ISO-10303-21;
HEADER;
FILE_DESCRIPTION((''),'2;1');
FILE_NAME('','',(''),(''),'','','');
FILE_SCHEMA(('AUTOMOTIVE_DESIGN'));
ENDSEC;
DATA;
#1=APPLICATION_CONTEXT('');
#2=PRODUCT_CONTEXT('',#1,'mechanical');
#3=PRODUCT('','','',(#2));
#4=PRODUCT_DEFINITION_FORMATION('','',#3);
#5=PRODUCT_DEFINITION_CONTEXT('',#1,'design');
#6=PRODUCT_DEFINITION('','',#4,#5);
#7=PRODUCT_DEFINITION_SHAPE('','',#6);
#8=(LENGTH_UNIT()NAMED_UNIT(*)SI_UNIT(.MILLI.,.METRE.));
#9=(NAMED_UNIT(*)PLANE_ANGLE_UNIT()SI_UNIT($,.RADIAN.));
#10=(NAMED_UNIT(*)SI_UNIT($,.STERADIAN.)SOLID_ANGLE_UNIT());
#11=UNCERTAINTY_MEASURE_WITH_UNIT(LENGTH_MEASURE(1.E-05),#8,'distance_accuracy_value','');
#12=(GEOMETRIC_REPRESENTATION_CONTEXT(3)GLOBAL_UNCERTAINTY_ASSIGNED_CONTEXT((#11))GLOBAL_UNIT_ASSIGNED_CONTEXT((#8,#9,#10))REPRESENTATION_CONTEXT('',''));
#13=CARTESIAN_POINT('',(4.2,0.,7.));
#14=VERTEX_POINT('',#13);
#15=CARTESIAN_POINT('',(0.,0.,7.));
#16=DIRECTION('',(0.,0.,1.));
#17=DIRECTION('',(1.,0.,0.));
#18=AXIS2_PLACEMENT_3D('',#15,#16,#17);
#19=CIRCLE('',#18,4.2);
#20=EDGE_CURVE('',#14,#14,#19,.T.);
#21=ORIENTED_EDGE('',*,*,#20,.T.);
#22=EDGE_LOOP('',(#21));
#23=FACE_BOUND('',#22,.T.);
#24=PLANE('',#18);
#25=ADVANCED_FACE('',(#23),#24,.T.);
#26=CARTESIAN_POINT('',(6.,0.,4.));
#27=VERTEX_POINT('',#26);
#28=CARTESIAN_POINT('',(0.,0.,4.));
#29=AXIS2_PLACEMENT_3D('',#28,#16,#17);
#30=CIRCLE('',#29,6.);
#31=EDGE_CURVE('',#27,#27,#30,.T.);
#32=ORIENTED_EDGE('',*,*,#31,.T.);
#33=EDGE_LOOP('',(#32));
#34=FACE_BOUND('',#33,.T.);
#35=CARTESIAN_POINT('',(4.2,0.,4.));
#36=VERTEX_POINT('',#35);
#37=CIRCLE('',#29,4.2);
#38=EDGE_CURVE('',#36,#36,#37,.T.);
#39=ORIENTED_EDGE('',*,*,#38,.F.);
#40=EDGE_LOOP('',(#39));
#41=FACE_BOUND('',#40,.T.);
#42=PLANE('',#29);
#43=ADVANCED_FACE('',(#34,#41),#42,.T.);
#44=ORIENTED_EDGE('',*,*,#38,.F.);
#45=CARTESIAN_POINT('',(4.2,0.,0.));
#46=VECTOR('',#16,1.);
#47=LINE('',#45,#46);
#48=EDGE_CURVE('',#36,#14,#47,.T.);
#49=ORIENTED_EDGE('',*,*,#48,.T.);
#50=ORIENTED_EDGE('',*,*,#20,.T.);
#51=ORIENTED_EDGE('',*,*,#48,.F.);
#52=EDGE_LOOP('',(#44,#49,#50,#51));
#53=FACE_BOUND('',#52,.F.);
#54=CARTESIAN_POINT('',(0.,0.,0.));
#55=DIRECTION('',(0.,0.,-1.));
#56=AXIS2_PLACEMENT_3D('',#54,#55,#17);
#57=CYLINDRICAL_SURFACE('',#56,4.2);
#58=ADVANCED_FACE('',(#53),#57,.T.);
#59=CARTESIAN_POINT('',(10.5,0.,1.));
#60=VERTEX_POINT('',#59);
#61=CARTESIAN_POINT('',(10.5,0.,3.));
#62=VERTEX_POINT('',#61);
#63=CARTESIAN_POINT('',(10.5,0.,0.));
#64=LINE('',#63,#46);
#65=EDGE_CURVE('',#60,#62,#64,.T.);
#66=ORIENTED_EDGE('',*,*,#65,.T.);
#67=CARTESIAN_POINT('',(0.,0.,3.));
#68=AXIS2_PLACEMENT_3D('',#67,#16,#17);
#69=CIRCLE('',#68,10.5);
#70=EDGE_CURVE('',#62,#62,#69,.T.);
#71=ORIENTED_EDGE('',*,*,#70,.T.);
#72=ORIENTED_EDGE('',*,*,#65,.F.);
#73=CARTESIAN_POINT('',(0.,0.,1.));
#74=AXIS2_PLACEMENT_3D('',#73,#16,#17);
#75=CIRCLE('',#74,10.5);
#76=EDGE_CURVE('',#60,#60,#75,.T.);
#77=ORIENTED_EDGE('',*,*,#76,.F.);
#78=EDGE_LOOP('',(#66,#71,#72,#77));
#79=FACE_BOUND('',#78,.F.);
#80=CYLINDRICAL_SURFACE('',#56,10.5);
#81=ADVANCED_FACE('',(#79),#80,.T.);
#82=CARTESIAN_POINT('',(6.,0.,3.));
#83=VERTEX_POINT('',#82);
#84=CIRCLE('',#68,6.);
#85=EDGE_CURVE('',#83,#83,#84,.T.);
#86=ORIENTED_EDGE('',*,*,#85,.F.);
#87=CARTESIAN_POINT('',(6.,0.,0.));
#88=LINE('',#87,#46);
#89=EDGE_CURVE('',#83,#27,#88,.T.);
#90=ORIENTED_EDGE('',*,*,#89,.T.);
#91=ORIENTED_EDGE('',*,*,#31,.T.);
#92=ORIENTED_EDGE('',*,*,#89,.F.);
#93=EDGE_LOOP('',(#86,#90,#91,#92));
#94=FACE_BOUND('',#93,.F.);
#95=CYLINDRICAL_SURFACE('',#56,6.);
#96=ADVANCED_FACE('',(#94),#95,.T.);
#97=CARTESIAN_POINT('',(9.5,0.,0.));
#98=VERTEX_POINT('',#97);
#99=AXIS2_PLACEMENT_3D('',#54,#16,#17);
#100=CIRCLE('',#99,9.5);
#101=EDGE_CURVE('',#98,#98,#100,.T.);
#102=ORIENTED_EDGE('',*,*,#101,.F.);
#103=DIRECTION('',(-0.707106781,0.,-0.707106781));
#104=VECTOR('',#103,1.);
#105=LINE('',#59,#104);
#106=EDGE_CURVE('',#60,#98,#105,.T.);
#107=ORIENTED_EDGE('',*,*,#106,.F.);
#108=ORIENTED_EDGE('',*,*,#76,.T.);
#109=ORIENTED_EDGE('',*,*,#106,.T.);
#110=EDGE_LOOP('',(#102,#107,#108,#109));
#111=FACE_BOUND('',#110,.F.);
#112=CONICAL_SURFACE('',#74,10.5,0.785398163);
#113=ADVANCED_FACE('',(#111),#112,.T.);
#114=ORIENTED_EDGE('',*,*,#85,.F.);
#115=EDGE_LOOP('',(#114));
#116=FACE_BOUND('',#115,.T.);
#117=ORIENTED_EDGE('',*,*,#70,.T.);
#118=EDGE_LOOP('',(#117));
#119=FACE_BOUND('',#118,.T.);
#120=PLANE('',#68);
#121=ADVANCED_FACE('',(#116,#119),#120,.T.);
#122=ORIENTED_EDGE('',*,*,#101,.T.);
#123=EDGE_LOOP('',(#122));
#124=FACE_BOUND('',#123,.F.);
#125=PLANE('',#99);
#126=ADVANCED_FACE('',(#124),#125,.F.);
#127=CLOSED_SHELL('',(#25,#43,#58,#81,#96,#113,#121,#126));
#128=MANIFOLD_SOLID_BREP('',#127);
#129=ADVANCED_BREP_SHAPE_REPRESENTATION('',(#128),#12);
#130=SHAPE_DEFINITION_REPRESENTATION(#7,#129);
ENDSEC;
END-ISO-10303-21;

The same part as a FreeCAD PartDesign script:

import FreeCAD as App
import Part
import Sketcher
Q = App.Units.Quantity


def edges_at(feature, points):
    """Names of the edges that pass closest to the given points."""
    edges = feature.Shape.Edges
    near = lambda p: min(range(len(edges)), key=lambda i: edges[i].distToShape(Part.Vertex(*p))[0])
    return sorted({f"Edge{near(p) + 1}" for p in points})

doc = App.newDocument("Part")
body = doc.addObject("PartDesign::Body", "Body")

# Sketch on XY plane
sketch1 = body.newObject("Sketcher::SketchObject", "Sketch")
sketch1.AttachmentSupport = (doc.getObject("XY_Plane"), [""])
sketch1.MapMode = "FlatFace"
sketch1.addGeometry(Part.Circle(App.Vector(0, 0, 0), App.Vector(0, 0, 1), 10), False)
sketch1.addGeometry(Part.Circle(App.Vector(0, 0, 0), App.Vector(0, 0, 1), 6), False)
sketch1.addConstraint(Sketcher.Constraint("Coincident", 0, 3, -1, 1))
sketch1.addConstraint(Sketcher.Constraint("Coincident", 1, 3, -1, 1))
sketch1.addConstraint(Sketcher.Constraint("Diameter", 0, Q("21 mm")))
sketch1.addConstraint(Sketcher.Constraint("Diameter", 1, Q("12 mm")))
pad1 = body.newObject("PartDesign::Pad", "Pad")
pad1.Profile = sketch1
pad1.Length = 3

# Sketch on XY plane
sketch2 = body.newObject("Sketcher::SketchObject", "Sketch001")
sketch2.AttachmentSupport = (doc.getObject("XY_Plane"), [""])
sketch2.MapMode = "FlatFace"
sketch2.addGeometry(Part.Circle(App.Vector(0, 0, 0), App.Vector(0, 0, 1), 6), False)
sketch2.addGeometry(Part.Circle(App.Vector(0, 0, 0), App.Vector(0, 0, 1), 4.2), False)
sketch2.addConstraint(Sketcher.Constraint("Coincident", 0, 3, -1, 1))
sketch2.addConstraint(Sketcher.Constraint("Coincident", 1, 3, -1, 1))
sketch2.addConstraint(Sketcher.Constraint("Diameter", 0, Q("12 mm")))
sketch2.addConstraint(Sketcher.Constraint("Diameter", 1, Q("8.4 mm")))
pad2 = body.newObject("PartDesign::Pad", "Pad001")
pad2.Profile = sketch2
pad2.Length = 4

# Sketch on XY plane
sketch3 = body.newObject("Sketcher::SketchObject", "Sketch002")
sketch3.AttachmentSupport = (doc.getObject("XY_Plane"), [""])
sketch3.MapMode = "FlatFace"
sketch3.addGeometry(Part.Circle(App.Vector(0, 0, 0), App.Vector(0, 0, 1), 4.2), False)
sketch3.addConstraint(Sketcher.Constraint("Coincident", 0, 3, -1, 1))
sketch3.addConstraint(Sketcher.Constraint("Diameter", 0, Q("8.4 mm")))
pad3 = body.newObject("PartDesign::Pad", "Pad002")
pad3.Profile = sketch3
pad3.Length = 7
doc.recompute()

chamfer = body.newObject("PartDesign::Chamfer", "Chamfer")
chamfer.Base = (pad3, edges_at(pad3, [(-10.5, 0, 0)]))
chamfer.Size = 1

doc.recompute()
